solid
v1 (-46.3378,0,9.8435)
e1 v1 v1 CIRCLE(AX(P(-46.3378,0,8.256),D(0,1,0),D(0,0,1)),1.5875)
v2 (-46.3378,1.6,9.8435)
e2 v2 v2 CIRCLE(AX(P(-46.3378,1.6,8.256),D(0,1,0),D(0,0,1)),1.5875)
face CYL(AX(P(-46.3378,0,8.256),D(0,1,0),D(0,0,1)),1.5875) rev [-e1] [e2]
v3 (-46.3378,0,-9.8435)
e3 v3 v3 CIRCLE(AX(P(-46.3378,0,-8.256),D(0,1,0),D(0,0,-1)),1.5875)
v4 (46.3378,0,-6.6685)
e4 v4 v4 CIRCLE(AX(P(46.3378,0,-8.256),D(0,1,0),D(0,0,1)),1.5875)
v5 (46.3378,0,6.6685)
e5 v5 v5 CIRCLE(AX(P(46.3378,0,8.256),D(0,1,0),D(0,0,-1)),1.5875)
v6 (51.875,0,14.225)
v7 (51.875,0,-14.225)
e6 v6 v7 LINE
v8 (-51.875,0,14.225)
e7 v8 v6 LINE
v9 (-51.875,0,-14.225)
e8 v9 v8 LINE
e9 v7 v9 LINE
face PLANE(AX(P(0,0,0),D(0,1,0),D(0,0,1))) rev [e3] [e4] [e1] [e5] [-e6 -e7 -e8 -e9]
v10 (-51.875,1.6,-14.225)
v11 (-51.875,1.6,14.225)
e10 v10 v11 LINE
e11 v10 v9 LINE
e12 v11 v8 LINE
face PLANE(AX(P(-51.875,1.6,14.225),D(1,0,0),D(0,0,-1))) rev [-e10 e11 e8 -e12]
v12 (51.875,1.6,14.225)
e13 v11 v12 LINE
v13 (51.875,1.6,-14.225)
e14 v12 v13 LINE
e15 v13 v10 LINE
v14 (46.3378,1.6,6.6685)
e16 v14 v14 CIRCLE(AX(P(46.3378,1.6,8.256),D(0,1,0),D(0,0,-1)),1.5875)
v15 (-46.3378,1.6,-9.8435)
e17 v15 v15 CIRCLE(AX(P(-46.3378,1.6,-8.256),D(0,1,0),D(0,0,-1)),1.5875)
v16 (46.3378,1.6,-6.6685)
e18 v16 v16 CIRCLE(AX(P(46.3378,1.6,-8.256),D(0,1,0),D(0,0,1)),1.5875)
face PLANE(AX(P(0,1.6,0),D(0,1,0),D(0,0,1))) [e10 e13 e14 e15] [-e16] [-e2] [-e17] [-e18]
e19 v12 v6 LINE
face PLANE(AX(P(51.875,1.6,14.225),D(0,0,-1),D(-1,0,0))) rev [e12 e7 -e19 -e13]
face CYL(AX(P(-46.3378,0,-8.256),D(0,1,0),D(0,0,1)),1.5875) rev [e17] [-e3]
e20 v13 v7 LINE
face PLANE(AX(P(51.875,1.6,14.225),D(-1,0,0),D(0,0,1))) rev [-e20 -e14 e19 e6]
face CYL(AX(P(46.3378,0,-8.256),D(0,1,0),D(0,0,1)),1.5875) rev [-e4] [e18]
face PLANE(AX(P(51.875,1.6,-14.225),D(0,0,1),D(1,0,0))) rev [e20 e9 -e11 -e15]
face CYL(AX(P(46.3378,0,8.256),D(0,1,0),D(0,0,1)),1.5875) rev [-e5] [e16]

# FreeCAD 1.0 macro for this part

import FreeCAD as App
import Part
import Sketcher
from FreeCAD import Vector

doc = App.newDocument("Part")
body = doc.addObject("PartDesign::Body", "Body")

# Sketch on XZ plane
sketch1 = body.newObject("Sketcher::SketchObject", "Sketch")
sketch1.AttachmentSupport = (doc.getObject("XZ_Plane"), [""])
sketch1.MapMode = "FlatFace"
sketch1.addGeometry([
    Part.LineSegment(Vector(-52, -14, 0), Vector(-52, 14, 0)),
    Part.LineSegment(Vector(-52, 14, 0), Vector(52, 14, 0)),
    Part.LineSegment(Vector(52, 14, 0), Vector(52, -14, 0)),
    Part.LineSegment(Vector(52, -14, 0), Vector(-52, -14, 0)),
], False)
sketch1.addConstraint([
    Sketcher.Constraint("Coincident", 0, 2, 1, 1),
    Sketcher.Constraint("Coincident", 1, 2, 2, 1),
    Sketcher.Constraint("Coincident", 2, 2, 3, 1),
    Sketcher.Constraint("Coincident", 3, 2, 0, 1),
    Sketcher.Constraint("Vertical", 0),
    Sketcher.Constraint("Horizontal", 1),
    Sketcher.Constraint("Vertical", 2),
    Sketcher.Constraint("Horizontal", 3),
    Sketcher.Constraint("Symmetric", 0, 2, 2, 2, -1, 1),
    Sketcher.Constraint("DistanceX", 1, 1, 1, 2, 103.75),
    Sketcher.Constraint("DistanceY", 0, 1, 0, 2, 28.45),
])
pad1 = body.newObject("PartDesign::Pad", "Pad")
pad1.Profile = sketch1
pad1.Length = 1.6
pad1.Reversed = True

# Sketch on XZ plane
sketch2 = body.newObject("Sketcher::SketchObject", "Sketch001")
sketch2.AttachmentSupport = (doc.getObject("XZ_Plane"), [""])
sketch2.MapMode = "FlatFace"
sketch2.AttachmentOffset = App.Placement(Vector(0, 0, -1.6), App.Rotation())
sketch2.addGeometry([
    Part.Circle(Vector(46.3, -8.3, 0), Vector(0, 0, 1), 1.6),
    Part.Circle(Vector(46.3, 8.3, 0), Vector(0, 0, 1), 1.6),
    Part.Circle(Vector(-46.3, -8.3, 0), Vector(0, 0, 1), 1.6),
    Part.Circle(Vector(-46.3, 8.3, 0), Vector(0, 0, 1), 1.6),
], False)
sketch2.addConstraint([
    Sketcher.Constraint("Equal", 0, 1),
    Sketcher.Constraint("Equal", 1, 2),
    Sketcher.Constraint("Equal", 2, 3),
    Sketcher.Constraint("Symmetric", 1, 3, 2, 3, -1, 1),
    Sketcher.Constraint("Symmetric", 0, 3, 3, 3, -1, 1),
    Sketcher.Constraint("Symmetric", 0, 3, 2, 3, -2),
    Sketcher.Constraint("Diameter", 0, 3.175),
    Sketcher.Constraint("DistanceY", 0, 3, -1, 1, 8.256),
    Sketcher.Constraint("DistanceX", -1, 1, 0, 3, 46.3378),
])
pocket1 = body.newObject("PartDesign::Pocket", "Pocket")
pocket1.Profile = sketch2
pocket1.Type = "ThroughAll"
pocket1.Reversed = True

doc.recompute()
